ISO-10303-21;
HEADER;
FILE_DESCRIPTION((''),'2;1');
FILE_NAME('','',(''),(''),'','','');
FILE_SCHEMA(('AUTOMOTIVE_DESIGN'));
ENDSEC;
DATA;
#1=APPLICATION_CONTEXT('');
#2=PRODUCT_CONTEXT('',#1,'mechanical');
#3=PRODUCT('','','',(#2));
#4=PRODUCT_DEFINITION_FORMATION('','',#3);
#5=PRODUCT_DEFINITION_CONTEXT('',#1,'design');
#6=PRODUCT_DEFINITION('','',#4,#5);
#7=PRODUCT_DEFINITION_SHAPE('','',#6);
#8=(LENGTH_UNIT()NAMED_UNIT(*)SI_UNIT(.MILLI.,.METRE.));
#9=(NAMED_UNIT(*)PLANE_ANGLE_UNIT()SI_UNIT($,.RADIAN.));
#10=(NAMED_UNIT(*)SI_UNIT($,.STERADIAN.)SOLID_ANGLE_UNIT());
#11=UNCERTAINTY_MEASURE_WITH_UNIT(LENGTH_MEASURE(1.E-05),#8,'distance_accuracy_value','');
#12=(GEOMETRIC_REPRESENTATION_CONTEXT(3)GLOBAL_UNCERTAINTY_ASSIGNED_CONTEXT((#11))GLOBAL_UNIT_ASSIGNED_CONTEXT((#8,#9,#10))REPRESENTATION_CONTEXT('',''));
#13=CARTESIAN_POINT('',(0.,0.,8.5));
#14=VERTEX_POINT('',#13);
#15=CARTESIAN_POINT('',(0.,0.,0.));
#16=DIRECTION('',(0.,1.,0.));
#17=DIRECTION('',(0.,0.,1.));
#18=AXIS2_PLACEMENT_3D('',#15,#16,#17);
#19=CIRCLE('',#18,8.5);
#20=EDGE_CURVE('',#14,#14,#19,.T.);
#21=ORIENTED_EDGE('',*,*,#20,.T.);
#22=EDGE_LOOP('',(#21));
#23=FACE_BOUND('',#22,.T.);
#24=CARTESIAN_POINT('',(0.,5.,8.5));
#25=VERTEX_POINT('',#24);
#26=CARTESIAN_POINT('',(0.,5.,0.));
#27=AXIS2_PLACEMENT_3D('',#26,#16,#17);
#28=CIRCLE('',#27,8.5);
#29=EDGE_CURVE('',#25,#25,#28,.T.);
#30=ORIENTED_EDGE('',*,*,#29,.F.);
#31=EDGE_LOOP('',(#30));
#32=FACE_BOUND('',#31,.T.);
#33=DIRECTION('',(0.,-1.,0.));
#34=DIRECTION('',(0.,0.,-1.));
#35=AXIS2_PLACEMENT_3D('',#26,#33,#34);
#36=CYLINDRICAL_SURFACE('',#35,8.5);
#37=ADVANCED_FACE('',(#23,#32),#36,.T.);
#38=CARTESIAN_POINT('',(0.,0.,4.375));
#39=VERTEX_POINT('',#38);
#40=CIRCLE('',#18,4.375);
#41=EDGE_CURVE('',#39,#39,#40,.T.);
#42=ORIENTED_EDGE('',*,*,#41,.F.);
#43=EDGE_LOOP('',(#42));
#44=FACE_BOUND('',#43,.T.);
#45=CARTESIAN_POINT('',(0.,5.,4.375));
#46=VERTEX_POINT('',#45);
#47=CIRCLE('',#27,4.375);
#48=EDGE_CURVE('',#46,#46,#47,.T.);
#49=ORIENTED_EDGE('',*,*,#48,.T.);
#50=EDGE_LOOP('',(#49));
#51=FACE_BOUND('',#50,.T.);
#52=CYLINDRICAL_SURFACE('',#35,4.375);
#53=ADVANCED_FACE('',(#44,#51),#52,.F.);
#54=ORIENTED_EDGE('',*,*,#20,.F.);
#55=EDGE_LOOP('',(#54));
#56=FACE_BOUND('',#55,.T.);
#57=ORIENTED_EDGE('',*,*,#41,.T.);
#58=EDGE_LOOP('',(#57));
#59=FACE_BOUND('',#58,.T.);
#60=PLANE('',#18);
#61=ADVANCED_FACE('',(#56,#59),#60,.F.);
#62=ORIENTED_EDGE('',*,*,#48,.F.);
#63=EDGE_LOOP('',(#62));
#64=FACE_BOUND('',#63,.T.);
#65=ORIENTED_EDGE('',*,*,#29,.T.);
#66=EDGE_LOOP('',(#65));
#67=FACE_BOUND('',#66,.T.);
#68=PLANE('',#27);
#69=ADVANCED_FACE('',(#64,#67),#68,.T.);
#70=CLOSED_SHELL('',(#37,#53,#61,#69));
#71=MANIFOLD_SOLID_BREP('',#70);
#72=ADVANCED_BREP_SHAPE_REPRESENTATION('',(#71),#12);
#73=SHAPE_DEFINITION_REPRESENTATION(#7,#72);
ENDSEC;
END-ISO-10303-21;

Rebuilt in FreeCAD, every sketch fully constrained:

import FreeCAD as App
import Part
import Sketcher

doc = App.newDocument("Part")
params = doc.addObject("Spreadsheet::Sheet", "Params")
for row, (alias, value) in enumerate([
    ("sketch1_diameter", "17 mm"),
    ("sketch1_diameter2", "8.75 mm"),
    ("pad1_length", "5 mm"),
], start=1):
    params.set(f"A{row}", alias)
    params.set(f"B{row}", "=" + value)
    params.setAlias(f"B{row}", alias)

body = doc.addObject("PartDesign::Body", "Body")

# Sketch on XZ plane
sketch1 = doc.addObject("Sketcher::SketchObject", "Sketch")
body.addObject(sketch1)
sketch1.AttachmentSupport = (doc.XZ_Plane, [""])
sketch1.MapMode = "FlatFace"
sketch1.addGeometry([
    Part.Circle(App.Vector(0, 0, 0), App.Vector(0, 0, 1), 8.5),
    Part.Circle(App.Vector(0, 0, 0), App.Vector(0, 0, 1), 4.4),
], False)
sketch1.addConstraint([
    Sketcher.Constraint("Coincident", 0, 3, -1, 1),
    Sketcher.Constraint("Coincident", 1, 3, -1, 1),
    Sketcher.Constraint("Diameter", 0, 17.0),
    Sketcher.Constraint("Diameter", 1, 8.75),
])
sketch1.setExpression("Constraints[2]", "Params.sketch1_diameter")
sketch1.setExpression("Constraints[3]", "Params.sketch1_diameter2")
pad1 = doc.addObject("PartDesign::Pad", "Pad")
body.addObject(pad1)
pad1.Profile = sketch1
pad1.setExpression("Length", "Params.pad1_length")
pad1.Reversed = True

doc.recompute()
